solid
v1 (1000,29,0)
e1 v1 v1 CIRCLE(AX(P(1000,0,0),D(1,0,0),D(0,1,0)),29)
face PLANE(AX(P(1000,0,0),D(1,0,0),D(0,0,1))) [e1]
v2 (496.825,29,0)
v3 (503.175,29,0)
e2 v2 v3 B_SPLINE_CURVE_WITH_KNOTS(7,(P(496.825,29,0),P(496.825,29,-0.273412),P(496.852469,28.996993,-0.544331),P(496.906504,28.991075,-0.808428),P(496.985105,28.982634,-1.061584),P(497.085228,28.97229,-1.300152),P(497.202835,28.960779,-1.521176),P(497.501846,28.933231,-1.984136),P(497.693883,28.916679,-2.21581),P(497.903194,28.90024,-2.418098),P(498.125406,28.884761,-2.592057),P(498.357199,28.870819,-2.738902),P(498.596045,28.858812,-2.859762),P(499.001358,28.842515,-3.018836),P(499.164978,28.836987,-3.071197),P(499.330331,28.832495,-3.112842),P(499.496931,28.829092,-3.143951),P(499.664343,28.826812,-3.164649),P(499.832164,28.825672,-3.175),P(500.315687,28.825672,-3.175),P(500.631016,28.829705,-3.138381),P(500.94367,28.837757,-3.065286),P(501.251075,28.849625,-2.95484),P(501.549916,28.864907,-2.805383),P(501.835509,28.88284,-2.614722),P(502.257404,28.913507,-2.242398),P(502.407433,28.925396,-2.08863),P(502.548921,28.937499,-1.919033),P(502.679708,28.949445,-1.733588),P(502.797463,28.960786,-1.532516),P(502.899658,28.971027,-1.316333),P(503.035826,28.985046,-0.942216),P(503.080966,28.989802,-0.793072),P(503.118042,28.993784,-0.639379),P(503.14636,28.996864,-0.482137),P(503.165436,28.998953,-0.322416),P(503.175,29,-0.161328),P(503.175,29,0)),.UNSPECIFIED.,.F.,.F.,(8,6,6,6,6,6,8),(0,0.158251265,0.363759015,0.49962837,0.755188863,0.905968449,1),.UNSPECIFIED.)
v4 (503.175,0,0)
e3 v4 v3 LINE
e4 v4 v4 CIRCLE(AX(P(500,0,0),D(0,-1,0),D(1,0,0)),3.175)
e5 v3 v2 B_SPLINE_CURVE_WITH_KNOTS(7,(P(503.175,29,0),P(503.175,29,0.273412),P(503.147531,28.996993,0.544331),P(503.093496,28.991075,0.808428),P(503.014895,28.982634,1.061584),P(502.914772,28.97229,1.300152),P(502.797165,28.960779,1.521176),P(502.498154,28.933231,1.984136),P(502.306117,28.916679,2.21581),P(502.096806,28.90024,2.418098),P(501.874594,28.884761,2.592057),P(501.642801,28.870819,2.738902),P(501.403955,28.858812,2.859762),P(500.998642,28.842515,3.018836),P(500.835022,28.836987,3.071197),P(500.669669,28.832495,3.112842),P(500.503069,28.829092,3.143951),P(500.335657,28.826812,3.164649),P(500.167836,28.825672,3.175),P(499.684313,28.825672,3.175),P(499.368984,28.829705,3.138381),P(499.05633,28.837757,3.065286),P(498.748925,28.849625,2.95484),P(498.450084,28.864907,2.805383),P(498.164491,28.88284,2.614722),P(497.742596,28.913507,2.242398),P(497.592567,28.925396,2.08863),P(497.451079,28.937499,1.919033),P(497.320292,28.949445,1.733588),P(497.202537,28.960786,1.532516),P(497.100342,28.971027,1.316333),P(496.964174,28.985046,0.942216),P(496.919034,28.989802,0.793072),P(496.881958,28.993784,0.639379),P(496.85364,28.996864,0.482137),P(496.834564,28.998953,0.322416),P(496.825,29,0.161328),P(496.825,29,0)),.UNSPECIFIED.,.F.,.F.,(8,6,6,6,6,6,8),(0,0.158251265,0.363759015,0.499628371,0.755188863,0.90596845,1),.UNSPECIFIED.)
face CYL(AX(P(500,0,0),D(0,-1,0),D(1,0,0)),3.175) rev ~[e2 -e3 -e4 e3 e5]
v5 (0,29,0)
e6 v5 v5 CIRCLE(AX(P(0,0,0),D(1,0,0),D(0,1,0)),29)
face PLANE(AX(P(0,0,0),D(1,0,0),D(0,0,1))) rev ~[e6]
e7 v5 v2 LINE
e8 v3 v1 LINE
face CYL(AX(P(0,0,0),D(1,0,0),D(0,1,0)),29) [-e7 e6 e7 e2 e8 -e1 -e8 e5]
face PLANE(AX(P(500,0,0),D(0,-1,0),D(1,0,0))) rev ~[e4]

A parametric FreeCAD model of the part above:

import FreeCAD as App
import Part
import Sketcher
from FreeCAD import Vector

doc = App.newDocument("Part")
params = doc.addObject("Spreadsheet::Sheet", "Params")
for row, (alias, value) in enumerate([
    ("sketch1_diameter", "58 mm"),
    ("sketch2_width", "1000 mm"),
    ("sketch3_diameter", "6.35 mm"),
], start=1):
    params.set(f"A{row}", alias)
    params.set(f"B{row}", "=" + value)
    params.setAlias(f"B{row}", alias)

body = doc.addObject("PartDesign::Body", "Body")

# Sketch on YZ plane
sketch1 = body.newObject("Sketcher::SketchObject", "Sketch")
sketch1.AttachmentSupport = (doc.getObject("YZ_Plane"), [""])
sketch1.MapMode = "FlatFace"
sketch1.addGeometry(Part.Circle(Vector(0, 0, 0), Vector(0, 0, 1), 29), False)
sketch1.addConstraint([
    Sketcher.Constraint("Coincident", 0, 3, -1, 1),
    Sketcher.Constraint("Diameter", 0, 58.0),
])
sketch1.setExpression("Constraints[1]", "Params.sketch1_diameter")

# Sketch on XY plane
sketch2 = body.newObject("Sketcher::SketchObject", "Sketch001")
sketch2.AttachmentSupport = (doc.getObject("XY_Plane"), [""])
sketch2.MapMode = "FlatFace"
sketch2.addGeometry(Part.LineSegment(Vector(0, 0, 0), Vector(1000, 0, 0)), False)
sketch2.addConstraint([
    Sketcher.Constraint("Horizontal", 0),
    Sketcher.Constraint("Coincident", 0, 1, -1, 1),
    Sketcher.Constraint("DistanceX", 0, 1, 0, 2, 1000.0),
])
sketch2.setExpression("Constraints[2]", "Params.sketch2_width")
doc.recompute()

additivepipe = body.newObject("PartDesign::AdditivePipe", "AdditivePipe")
additivepipe.Profile = sketch1
additivepipe.Spine = (sketch2, ["Edge1"])

# Sketch on XZ plane
sketch3 = body.newObject("Sketcher::SketchObject", "Sketch002")
sketch3.AttachmentSupport = (doc.getObject("XZ_Plane"), [""])
sketch3.MapMode = "FlatFace"
sketch3.addGeometry(Part.Circle(Vector(500, 0, 0), Vector(0, 0, 1), 3.175), False)
sketch3.addConstraint([
    Sketcher.Constraint("PointOnObject", 0, 3, -1),
    Sketcher.Constraint("Diameter", 0, 6.35),
    Sketcher.Constraint("DistanceX", -1, 1, 0, 3, 500.0),
])
sketch3.setExpression("Constraints[1]", "Params.sketch3_diameter")
pocket1 = body.newObject("PartDesign::Pocket", "Pocket")
pocket1.Profile = sketch3
pocket1.Type = "ThroughAll"

doc.recompute()
